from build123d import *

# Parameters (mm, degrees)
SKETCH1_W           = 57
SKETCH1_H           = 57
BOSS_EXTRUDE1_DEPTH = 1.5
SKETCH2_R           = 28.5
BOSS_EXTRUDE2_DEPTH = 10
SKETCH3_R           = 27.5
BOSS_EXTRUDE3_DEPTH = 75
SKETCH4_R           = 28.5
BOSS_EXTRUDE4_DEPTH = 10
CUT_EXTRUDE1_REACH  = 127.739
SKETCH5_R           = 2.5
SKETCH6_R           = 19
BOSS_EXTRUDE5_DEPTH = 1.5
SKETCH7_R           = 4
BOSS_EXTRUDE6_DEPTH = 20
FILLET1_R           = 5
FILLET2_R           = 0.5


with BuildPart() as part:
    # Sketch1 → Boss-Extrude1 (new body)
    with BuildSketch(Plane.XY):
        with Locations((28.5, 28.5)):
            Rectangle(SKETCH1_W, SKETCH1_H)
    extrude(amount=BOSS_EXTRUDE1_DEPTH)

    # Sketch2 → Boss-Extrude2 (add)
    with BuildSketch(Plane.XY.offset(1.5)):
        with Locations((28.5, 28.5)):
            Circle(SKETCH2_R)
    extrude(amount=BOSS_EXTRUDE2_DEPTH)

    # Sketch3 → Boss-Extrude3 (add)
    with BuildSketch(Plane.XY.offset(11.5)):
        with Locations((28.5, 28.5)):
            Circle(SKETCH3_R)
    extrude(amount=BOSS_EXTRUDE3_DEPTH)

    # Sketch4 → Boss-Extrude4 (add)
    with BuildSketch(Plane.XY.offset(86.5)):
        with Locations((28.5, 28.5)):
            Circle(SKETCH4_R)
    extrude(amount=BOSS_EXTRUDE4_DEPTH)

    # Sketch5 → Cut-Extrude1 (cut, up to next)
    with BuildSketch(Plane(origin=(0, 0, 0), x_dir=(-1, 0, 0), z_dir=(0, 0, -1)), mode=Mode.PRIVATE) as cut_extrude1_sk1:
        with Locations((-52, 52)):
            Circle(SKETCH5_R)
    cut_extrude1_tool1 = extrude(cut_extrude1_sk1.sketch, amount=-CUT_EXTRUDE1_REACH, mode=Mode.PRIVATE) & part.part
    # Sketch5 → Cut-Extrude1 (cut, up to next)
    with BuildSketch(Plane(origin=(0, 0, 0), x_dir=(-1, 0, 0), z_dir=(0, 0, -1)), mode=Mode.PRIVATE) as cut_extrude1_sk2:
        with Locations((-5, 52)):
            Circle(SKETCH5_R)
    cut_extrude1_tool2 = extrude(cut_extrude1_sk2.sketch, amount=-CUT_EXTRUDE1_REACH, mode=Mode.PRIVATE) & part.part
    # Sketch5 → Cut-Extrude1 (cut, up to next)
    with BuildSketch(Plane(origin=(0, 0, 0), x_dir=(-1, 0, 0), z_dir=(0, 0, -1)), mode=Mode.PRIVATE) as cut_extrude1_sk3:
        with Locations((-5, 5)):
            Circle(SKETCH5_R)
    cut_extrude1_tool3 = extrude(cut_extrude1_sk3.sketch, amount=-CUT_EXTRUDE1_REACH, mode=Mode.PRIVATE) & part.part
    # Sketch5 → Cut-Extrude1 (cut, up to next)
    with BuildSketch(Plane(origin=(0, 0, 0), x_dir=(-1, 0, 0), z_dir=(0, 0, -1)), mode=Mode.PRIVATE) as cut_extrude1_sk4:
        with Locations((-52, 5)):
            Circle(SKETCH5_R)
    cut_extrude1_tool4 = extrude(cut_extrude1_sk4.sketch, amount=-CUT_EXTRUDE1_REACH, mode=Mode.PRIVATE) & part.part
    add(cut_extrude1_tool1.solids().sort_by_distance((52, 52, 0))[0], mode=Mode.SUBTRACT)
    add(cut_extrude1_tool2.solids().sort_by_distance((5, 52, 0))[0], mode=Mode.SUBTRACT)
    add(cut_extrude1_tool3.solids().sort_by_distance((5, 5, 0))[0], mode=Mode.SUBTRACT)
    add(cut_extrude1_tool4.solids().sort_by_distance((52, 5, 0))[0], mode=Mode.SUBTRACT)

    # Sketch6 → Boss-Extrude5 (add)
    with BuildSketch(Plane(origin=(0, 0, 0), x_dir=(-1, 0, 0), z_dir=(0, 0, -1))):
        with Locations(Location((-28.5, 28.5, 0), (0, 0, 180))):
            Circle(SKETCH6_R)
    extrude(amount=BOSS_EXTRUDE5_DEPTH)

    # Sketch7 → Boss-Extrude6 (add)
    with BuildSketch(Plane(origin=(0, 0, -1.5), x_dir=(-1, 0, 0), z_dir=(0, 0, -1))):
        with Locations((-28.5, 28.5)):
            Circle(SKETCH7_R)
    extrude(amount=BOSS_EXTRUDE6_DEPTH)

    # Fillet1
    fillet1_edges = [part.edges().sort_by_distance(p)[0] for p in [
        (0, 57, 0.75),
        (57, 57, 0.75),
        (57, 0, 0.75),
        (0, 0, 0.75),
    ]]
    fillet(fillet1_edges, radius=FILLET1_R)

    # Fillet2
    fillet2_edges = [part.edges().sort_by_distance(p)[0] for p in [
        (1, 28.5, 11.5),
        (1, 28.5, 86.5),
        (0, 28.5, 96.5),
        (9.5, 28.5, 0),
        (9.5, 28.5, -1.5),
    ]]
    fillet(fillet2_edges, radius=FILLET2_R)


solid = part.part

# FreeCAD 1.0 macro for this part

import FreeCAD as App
import Part
import Sketcher


def edges_at(feature, points):
    """Names of the edges that pass closest to the given points."""
    edges = feature.Shape.Edges
    near = lambda p: min(range(len(edges)), key=lambda i: edges[i].distToShape(Part.Vertex(*p))[0])
    return sorted({f"Edge{near(p) + 1}" for p in points})


def add_polygon(sketch, points):
    """Adds a closed chain of lines whose ends are joined by coincident constraints."""
    first, n = sketch.GeometryCount, len(points)
    for a, b in zip(points, points[1:] + points[:1]):
        sketch.addGeometry(Part.LineSegment(App.Vector(*a, 0), App.Vector(*b, 0)), False)
    for i in range(n):
        sketch.addConstraint(Sketcher.Constraint("Coincident", first + i, 2, first + (i + 1) % n, 1))

doc = App.newDocument("Part")
body = doc.addObject("PartDesign::Body", "Body")

# Sketch on XY plane
sketch1 = doc.addObject("Sketcher::SketchObject", "Sketch")
body.addObject(sketch1)
sketch1.AttachmentSupport = (doc.XY_Plane, [""])
sketch1.MapMode = "FlatFace"
add_polygon(sketch1, [(0, 57), (0, 0), (57, 0), (57, 57)])  # lines 0-3
sketch1.addConstraint(Sketcher.Constraint("Vertical", 0))
sketch1.addConstraint(Sketcher.Constraint("Horizontal", 1))
sketch1.addConstraint(Sketcher.Constraint("Vertical", 2))
sketch1.addConstraint(Sketcher.Constraint("Horizontal", 3))
sketch1.addConstraint(Sketcher.Constraint("Coincident", 0, 2, -1, 1))
sketch1.addConstraint(Sketcher.Constraint("Equal", 3, 0))
sketch1.addConstraint(Sketcher.Constraint("DistanceX", 1, 1, 1, 2, 57.0))
pad1 = doc.addObject("PartDesign::Pad", "Pad")
body.addObject(pad1)
pad1.Profile = sketch1
pad1.Length = 1.5

# Sketch on XY plane
sketch2 = doc.addObject("Sketcher::SketchObject", "Sketch001")
body.addObject(sketch2)
sketch2.AttachmentSupport = (doc.XY_Plane, [""])
sketch2.MapMode = "FlatFace"
sketch2.AttachmentOffset = App.Placement(App.Vector(0, 0, 1.5), App.Rotation())
sketch2.addGeometry(Part.Circle(App.Vector(28, 28, 0), App.Vector(0, 0, 1), 28), False)
sketch2.addConstraint(Sketcher.Constraint("Diameter", 0, 57.0))
sketch2.addConstraint(Sketcher.Constraint("DistanceX", -1, 1, 0, 3, 28.5))
sketch2.addConstraint(Sketcher.Constraint("DistanceY", -1, 1, 0, 3, 28.5))
pad2 = doc.addObject("PartDesign::Pad", "Pad001")
body.addObject(pad2)
pad2.Profile = sketch2
pad2.Length = 10

# Sketch on XY plane
sketch3 = doc.addObject("Sketcher::SketchObject", "Sketch002")
body.addObject(sketch3)
sketch3.AttachmentSupport = (doc.XY_Plane, [""])
sketch3.MapMode = "FlatFace"
sketch3.AttachmentOffset = App.Placement(App.Vector(0, 0, 11.5), App.Rotation())
sketch3.addGeometry(Part.Circle(App.Vector(28, 28, 0), App.Vector(0, 0, 1), 28), False)
sketch3.addConstraint(Sketcher.Constraint("Diameter", 0, 55.0))
sketch3.addConstraint(Sketcher.Constraint("DistanceX", -1, 1, 0, 3, 28.5))
sketch3.addConstraint(Sketcher.Constraint("DistanceY", -1, 1, 0, 3, 28.5))
pad3 = doc.addObject("PartDesign::Pad", "Pad002")
body.addObject(pad3)
pad3.Profile = sketch3
pad3.Length = 75

# Sketch on XY plane
sketch4 = doc.addObject("Sketcher::SketchObject", "Sketch003")
body.addObject(sketch4)
sketch4.AttachmentSupport = (doc.XY_Plane, [""])
sketch4.MapMode = "FlatFace"
sketch4.AttachmentOffset = App.Placement(App.Vector(0, 0, 86.5), App.Rotation())
sketch4.addGeometry(Part.Circle(App.Vector(28, 28, 0), App.Vector(0, 0, 1), 28), False)
sketch4.addConstraint(Sketcher.Constraint("Diameter", 0, 57.0))
sketch4.addConstraint(Sketcher.Constraint("DistanceX", -1, 1, 0, 3, 28.5))
sketch4.addConstraint(Sketcher.Constraint("DistanceY", -1, 1, 0, 3, 28.5))
pad4 = doc.addObject("PartDesign::Pad", "Pad003")
body.addObject(pad4)
pad4.Profile = sketch4
pad4.Length = 10

# Sketch on XY plane
sketch5 = doc.addObject("Sketcher::SketchObject", "Sketch004")
body.addObject(sketch5)
sketch5.AttachmentSupport = (doc.XY_Plane, [""])
sketch5.MapMode = "FlatFace"
sketch5.addGeometry(Part.Circle(App.Vector(52, 52, 0), App.Vector(0, 0, 1), 2.5), False)
sketch5.addConstraint(Sketcher.Constraint("Diameter", 0, 5.0))
sketch5.addConstraint(Sketcher.Constraint("DistanceX", -1, 1, 0, 3, 52.0))
sketch5.addConstraint(Sketcher.Constraint("DistanceY", -1, 1, 0, 3, 52.0))
pocket1 = doc.addObject("PartDesign::Pocket", "Pocket")
body.addObject(pocket1)
pocket1.Profile = sketch5
pocket1.Type = "UpToFirst"
pocket1.Reversed = True

# Sketch on XY plane
sketch6 = doc.addObject("Sketcher::SketchObject", "Sketch005")
body.addObject(sketch6)
sketch6.AttachmentSupport = (doc.XY_Plane, [""])
sketch6.MapMode = "FlatFace"
sketch6.addGeometry(Part.Circle(App.Vector(5, 52, 0), App.Vector(0, 0, 1), 2.5), False)
sketch6.addConstraint(Sketcher.Constraint("Diameter", 0, 5.0))
sketch6.addConstraint(Sketcher.Constraint("DistanceX", -1, 1, 0, 3, 5.0))
sketch6.addConstraint(Sketcher.Constraint("DistanceY", -1, 1, 0, 3, 52.0))
pocket2 = doc.addObject("PartDesign::Pocket", "Pocket001")
body.addObject(pocket2)
pocket2.Profile = sketch6
pocket2.Type = "UpToFirst"
pocket2.Reversed = True

# Sketch on XY plane
sketch7 = doc.addObject("Sketcher::SketchObject", "Sketch006")
body.addObject(sketch7)
sketch7.AttachmentSupport = (doc.XY_Plane, [""])
sketch7.MapMode = "FlatFace"
sketch7.addGeometry(Part.Circle(App.Vector(5, 5, 0), App.Vector(0, 0, 1), 2.5), False)
sketch7.addConstraint(Sketcher.Constraint("Diameter", 0, 5.0))
sketch7.addConstraint(Sketcher.Constraint("DistanceX", -1, 1, 0, 3, 5.0))
sketch7.addConstraint(Sketcher.Constraint("DistanceY", -1, 1, 0, 3, 5.0))
pocket3 = doc.addObject("PartDesign::Pocket", "Pocket002")
body.addObject(pocket3)
pocket3.Profile = sketch7
pocket3.Type = "UpToFirst"
pocket3.Reversed = True

# Sketch on XY plane
sketch8 = doc.addObject("Sketcher::SketchObject", "Sketch007")
body.addObject(sketch8)
sketch8.AttachmentSupport = (doc.XY_Plane, [""])
sketch8.MapMode = "FlatFace"
sketch8.addGeometry(Part.Circle(App.Vector(52, 5, 0), App.Vector(0, 0, 1), 2.5), False)
sketch8.addConstraint(Sketcher.Constraint("Diameter", 0, 5.0))
sketch8.addConstraint(Sketcher.Constraint("DistanceX", -1, 1, 0, 3, 52.0))
sketch8.addConstraint(Sketcher.Constraint("DistanceY", -1, 1, 0, 3, 5.0))
pocket4 = doc.addObject("PartDesign::Pocket", "Pocket003")
body.addObject(pocket4)
pocket4.Profile = sketch8
pocket4.Type = "UpToFirst"
pocket4.Reversed = True

# Sketch on XY plane
sketch9 = doc.addObject("Sketcher::SketchObject", "Sketch008")
body.addObject(sketch9)
sketch9.AttachmentSupport = (doc.XY_Plane, [""])
sketch9.MapMode = "FlatFace"
sketch9.addGeometry(Part.Circle(App.Vector(28, 28, 0), App.Vector(0, 0, 1), 19), False)
sketch9.addConstraint(Sketcher.Constraint("Diameter", 0, 38.0))
sketch9.addConstraint(Sketcher.Constraint("DistanceX", -1, 1, 0, 3, 28.5))
sketch9.addConstraint(Sketcher.Constraint("DistanceY", -1, 1, 0, 3, 28.5))
pad5 = doc.addObject("PartDesign::Pad", "Pad004")
body.addObject(pad5)
pad5.Profile = sketch9
pad5.Length = 1.5
pad5.Reversed = True

# Sketch on XY plane
sketch10 = doc.addObject("Sketcher::SketchObject", "Sketch009")
body.addObject(sketch10)
sketch10.AttachmentSupport = (doc.XY_Plane, [""])
sketch10.MapMode = "FlatFace"
sketch10.AttachmentOffset = App.Placement(App.Vector(0, 0, -1.5), App.Rotation())
sketch10.addGeometry(Part.Circle(App.Vector(28.5, 28.5, 0), App.Vector(0, 0, 1), 4), False)
sketch10.addConstraint(Sketcher.Constraint("Diameter", 0, 8.0))
sketch10.addConstraint(Sketcher.Constraint("DistanceX", -1, 1, 0, 3, 28.5))
sketch10.addConstraint(Sketcher.Constraint("DistanceY", -1, 1, 0, 3, 28.5))
pad6 = doc.addObject("PartDesign::Pad", "Pad005")
body.addObject(pad6)
pad6.Profile = sketch10
pad6.Length = 20
pad6.Reversed = True
doc.recompute()

fillet = doc.addObject("PartDesign::Fillet", "Fillet")
body.addObject(fillet)
fillet.Base = (pad6, edges_at(pad6, [
    (0, 57, 0.75),
    (57, 57, 0.75),
    (57, 0, 0.75),
    (0, 0, 0.75),
]))
fillet.Radius = 5
doc.recompute()

fillet2 = doc.addObject("PartDesign::Fillet", "Fillet001")
body.addObject(fillet2)
fillet2.Base = (fillet, edges_at(fillet, [
    (1, 28.5, 11.5),
    (1, 28.5, 86.5),
    (0, 28.5, 96.5),
    (9.5, 28.5, 0),
    (9.5, 28.5, -1.5),
]))
fillet2.Radius = 0.5

doc.recompute()
